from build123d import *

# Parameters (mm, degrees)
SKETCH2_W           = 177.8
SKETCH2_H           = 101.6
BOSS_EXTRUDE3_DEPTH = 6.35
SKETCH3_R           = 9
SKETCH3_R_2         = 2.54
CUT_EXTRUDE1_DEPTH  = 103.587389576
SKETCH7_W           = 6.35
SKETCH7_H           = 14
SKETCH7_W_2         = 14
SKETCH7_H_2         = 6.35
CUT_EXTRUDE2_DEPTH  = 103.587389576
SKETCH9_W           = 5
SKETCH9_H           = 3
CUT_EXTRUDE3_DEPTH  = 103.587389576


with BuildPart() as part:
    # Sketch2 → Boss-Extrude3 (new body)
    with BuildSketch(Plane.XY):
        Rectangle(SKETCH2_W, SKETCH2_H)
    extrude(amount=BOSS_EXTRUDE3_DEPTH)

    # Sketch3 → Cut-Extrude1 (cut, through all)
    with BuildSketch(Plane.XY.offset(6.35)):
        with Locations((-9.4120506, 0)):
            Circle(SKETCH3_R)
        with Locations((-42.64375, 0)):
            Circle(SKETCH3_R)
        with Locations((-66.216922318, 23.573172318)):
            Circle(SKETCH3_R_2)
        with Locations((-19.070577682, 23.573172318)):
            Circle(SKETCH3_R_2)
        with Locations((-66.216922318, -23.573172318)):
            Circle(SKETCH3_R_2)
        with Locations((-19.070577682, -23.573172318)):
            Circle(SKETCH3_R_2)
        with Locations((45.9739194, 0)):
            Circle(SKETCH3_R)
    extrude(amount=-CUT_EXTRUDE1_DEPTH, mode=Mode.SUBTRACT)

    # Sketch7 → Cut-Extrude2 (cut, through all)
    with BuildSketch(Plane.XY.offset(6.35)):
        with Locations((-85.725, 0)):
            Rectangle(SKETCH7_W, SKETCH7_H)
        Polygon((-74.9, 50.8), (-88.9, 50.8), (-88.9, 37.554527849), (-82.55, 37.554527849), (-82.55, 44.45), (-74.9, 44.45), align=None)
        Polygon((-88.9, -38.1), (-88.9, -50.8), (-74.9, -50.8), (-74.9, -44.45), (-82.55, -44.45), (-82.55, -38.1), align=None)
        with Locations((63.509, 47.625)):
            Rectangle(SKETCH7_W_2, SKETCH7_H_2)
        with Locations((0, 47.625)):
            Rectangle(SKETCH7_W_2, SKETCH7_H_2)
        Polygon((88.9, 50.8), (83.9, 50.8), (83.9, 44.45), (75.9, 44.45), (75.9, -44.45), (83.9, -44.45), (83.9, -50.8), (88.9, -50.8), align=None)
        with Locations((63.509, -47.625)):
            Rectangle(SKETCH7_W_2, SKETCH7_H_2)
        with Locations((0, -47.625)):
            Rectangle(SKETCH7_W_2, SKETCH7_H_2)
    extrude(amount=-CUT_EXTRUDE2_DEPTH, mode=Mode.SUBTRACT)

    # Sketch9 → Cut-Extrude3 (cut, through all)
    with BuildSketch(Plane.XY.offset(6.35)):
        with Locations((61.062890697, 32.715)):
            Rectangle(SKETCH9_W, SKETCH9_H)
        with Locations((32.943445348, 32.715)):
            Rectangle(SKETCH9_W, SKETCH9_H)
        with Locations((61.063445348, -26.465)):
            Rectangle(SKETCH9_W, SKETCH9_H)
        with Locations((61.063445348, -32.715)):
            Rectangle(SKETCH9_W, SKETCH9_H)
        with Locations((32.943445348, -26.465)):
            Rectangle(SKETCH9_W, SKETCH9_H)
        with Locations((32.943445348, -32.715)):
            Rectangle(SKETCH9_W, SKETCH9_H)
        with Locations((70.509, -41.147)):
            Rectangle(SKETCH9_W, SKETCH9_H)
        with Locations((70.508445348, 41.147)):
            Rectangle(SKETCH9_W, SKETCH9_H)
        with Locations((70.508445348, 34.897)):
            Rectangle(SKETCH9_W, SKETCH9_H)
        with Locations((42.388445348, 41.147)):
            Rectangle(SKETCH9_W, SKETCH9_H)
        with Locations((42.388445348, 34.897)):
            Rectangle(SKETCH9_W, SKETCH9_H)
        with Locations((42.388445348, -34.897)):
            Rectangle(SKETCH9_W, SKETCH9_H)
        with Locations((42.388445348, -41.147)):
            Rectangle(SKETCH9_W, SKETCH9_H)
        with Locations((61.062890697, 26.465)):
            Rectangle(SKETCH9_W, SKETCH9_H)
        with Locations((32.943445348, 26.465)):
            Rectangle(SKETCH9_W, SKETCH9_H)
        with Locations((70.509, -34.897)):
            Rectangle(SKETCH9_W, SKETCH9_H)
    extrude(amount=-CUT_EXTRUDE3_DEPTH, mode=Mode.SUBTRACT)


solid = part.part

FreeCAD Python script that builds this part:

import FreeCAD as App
import Part
import Sketcher
Q = App.Units.Quantity

doc = App.newDocument("Part")
body = doc.addObject("PartDesign::Body", "Body")

sketch1 = body.newObject("Sketcher::SketchObject", "Sketch")
sketch1.AttachmentSupport = (doc.getObject("XY_Plane"), [""])
sketch1.MapMode = "FlatFace"
sketch1.addGeometry(Part.LineSegment(App.Vector(-88.9, 50.8, 0), App.Vector(-88.9, -50.8, 0)), False)
sketch1.addGeometry(Part.LineSegment(App.Vector(-88.9, -50.8, 0), App.Vector(88.9, -50.8, 0)), False)
sketch1.addGeometry(Part.LineSegment(App.Vector(88.9, -50.8, 0), App.Vector(88.9, 50.8, 0)), False)
sketch1.addGeometry(Part.LineSegment(App.Vector(88.9, 50.8, 0), App.Vector(-88.9, 50.8, 0)), False)
sketch1.addConstraint(Sketcher.Constraint("Coincident", 0, 2, 1, 1))
sketch1.addConstraint(Sketcher.Constraint("Coincident", 1, 2, 2, 1))
sketch1.addConstraint(Sketcher.Constraint("Coincident", 2, 2, 3, 1))
sketch1.addConstraint(Sketcher.Constraint("Coincident", 3, 2, 0, 1))
sketch1.addConstraint(Sketcher.Constraint("Vertical", 0))
sketch1.addConstraint(Sketcher.Constraint("Horizontal", 1))
sketch1.addConstraint(Sketcher.Constraint("Vertical", 2))
sketch1.addConstraint(Sketcher.Constraint("Horizontal", 3))
sketch1.addConstraint(Sketcher.Constraint("Symmetric", 0, 2, 2, 2, -1, 1))
sketch1.addConstraint(Sketcher.Constraint("DistanceX", 1, 1, 1, 2, Q("7 in")))
sketch1.addConstraint(Sketcher.Constraint("DistanceY", 0, 2, 0, 1, Q("4 in")))
pad1 = body.newObject("PartDesign::Pad", "Pad")
pad1.Profile = sketch1
pad1.Length = Q("0.25 in")

sketch2 = body.newObject("Sketcher::SketchObject", "Sketch001")
sketch2.AttachmentSupport = (doc.getObject("XY_Plane"), [""])
sketch2.MapMode = "FlatFace"
sketch2.AttachmentOffset = App.Placement(App.Vector(0, 0, 0.25 * 25.4), App.Rotation())
sketch2.addGeometry(Part.Circle(App.Vector(-9.412051, 0, 0), App.Vector(0, 0, 1), 9), False)
sketch2.addGeometry(Part.Circle(App.Vector(-42.64375, 0, 0), App.Vector(0, 0, 1), 9), False)
sketch2.addGeometry(Part.Circle(App.Vector(-66.216922, 23.573172, 0), App.Vector(0, 0, 1), 2.54), False)
sketch2.addGeometry(Part.Circle(App.Vector(-19.070578, 23.573172, 0), App.Vector(0, 0, 1), 2.54), False)
sketch2.addGeometry(Part.Circle(App.Vector(-66.216922, -23.573172, 0), App.Vector(0, 0, 1), 2.54), False)
sketch2.addGeometry(Part.Circle(App.Vector(-19.070578, -23.573172, 0), App.Vector(0, 0, 1), 2.54), False)
sketch2.addGeometry(Part.Circle(App.Vector(45.973919, 0, 0), App.Vector(0, 0, 1), 9), False)
sketch2.addConstraint(Sketcher.Constraint("Equal", 0, 1))
sketch2.addConstraint(Sketcher.Constraint("Equal", 2, 3))
sketch2.addConstraint(Sketcher.Constraint("Equal", 3, 4))
sketch2.addConstraint(Sketcher.Constraint("Equal", 4, 5))
sketch2.addConstraint(Sketcher.Constraint("Equal", 1, 6))
sketch2.addConstraint(Sketcher.Constraint("Symmetric", 2, 3, 4, 3, -1))
sketch2.addConstraint(Sketcher.Constraint("Symmetric", 3, 3, 5, 3, -1))
sketch2.addConstraint(Sketcher.Constraint("PointOnObject", 0, 3, -1))
sketch2.addConstraint(Sketcher.Constraint("PointOnObject", 1, 3, -1))
sketch2.addConstraint(Sketcher.Constraint("PointOnObject", 6, 3, -1))
sketch2.addConstraint(Sketcher.Constraint("Horizontal", 2, 3, 3, 3))
sketch2.addConstraint(Sketcher.Constraint("Diameter", 2, Q("0.2 in")))
sketch2.addConstraint(Sketcher.Constraint("Diameter", 0, 18.0))
sketch2.addConstraint(Sketcher.Constraint("DistanceX", 1, 3, 0, 3, 33.231699))
sketch2.addConstraint(Sketcher.Constraint("DistanceX", 0, 3, -1, 1, 9.412051))
sketch2.addConstraint(Sketcher.Constraint("DistanceX", -1, 1, 6, 3, 45.973919))
sketch2.addConstraint(Sketcher.Constraint("DistanceX", 2, 3, 0, 3, 56.804872))
sketch2.addConstraint(Sketcher.Constraint("DistanceY", -1, 1, 2, 3, 23.573172))
sketch2.addConstraint(Sketcher.Constraint("DistanceX", 3, 3, -1, 1, 19.070578))
pocket1 = body.newObject("PartDesign::Pocket", "Pocket")
pocket1.Profile = sketch2
pocket1.Type = "ThroughAll"

sketch3 = body.newObject("Sketcher::SketchObject", "Sketch002")
sketch3.AttachmentSupport = (doc.getObject("XY_Plane"), [""])
sketch3.MapMode = "FlatFace"
sketch3.AttachmentOffset = App.Placement(App.Vector(0, 0, 0.25 * 25.4), App.Rotation())
sketch3.addGeometry(Part.LineSegment(App.Vector(-88.9, 7, 0), App.Vector(-88.9, -7, 0)), False)
sketch3.addGeometry(Part.LineSegment(App.Vector(-88.9, -7, 0), App.Vector(-82.55, -7, 0)), False)
sketch3.addGeometry(Part.LineSegment(App.Vector(-82.55, -7, 0), App.Vector(-82.55, 7, 0)), False)
sketch3.addGeometry(Part.LineSegment(App.Vector(-82.55, 7, 0), App.Vector(-88.9, 7, 0)), False)
sketch3.addGeometry(Part.LineSegment(App.Vector(-74.9, 50.8, 0), App.Vector(-88.9, 50.8, 0)), False)
sketch3.addGeometry(Part.LineSegment(App.Vector(-88.9, 50.8, 0), App.Vector(-88.9, 37.554528, 0)), False)
sketch3.addGeometry(Part.LineSegment(App.Vector(-88.9, 37.554528, 0), App.Vector(-82.55, 37.554528, 0)), False)
sketch3.addGeometry(Part.LineSegment(App.Vector(-82.55, 37.554528, 0), App.Vector(-82.55, 44.45, 0)), False)
sketch3.addGeometry(Part.LineSegment(App.Vector(-82.55, 44.45, 0), App.Vector(-74.9, 44.45, 0)), False)
sketch3.addGeometry(Part.LineSegment(App.Vector(-74.9, 44.45, 0), App.Vector(-74.9, 50.8, 0)), False)
sketch3.addGeometry(Part.LineSegment(App.Vector(-88.9, -38.1, 0), App.Vector(-88.9, -50.8, 0)), False)
sketch3.addGeometry(Part.LineSegment(App.Vector(-88.9, -50.8, 0), App.Vector(-74.9, -50.8, 0)), False)
sketch3.addGeometry(Part.LineSegment(App.Vector(-74.9, -50.8, 0), App.Vector(-74.9, -44.45, 0)), False)
sketch3.addGeometry(Part.LineSegment(App.Vector(-74.9, -44.45, 0), App.Vector(-82.55, -44.45, 0)), False)
sketch3.addGeometry(Part.LineSegment(App.Vector(-82.55, -44.45, 0), App.Vector(-82.55, -38.1, 0)), False)
sketch3.addGeometry(Part.LineSegment(App.Vector(-82.55, -38.1, 0), App.Vector(-88.9, -38.1, 0)), False)
sketch3.addGeometry(Part.LineSegment(App.Vector(56.509, 50.8, 0), App.Vector(56.509, 44.45, 0)), False)
sketch3.addGeometry(Part.LineSegment(App.Vector(56.509, 44.45, 0), App.Vector(70.509, 44.45, 0)), False)
sketch3.addGeometry(Part.LineSegment(App.Vector(70.509, 44.45, 0), App.Vector(70.509, 50.8, 0)), False)
sketch3.addGeometry(Part.LineSegment(App.Vector(70.509, 50.8, 0), App.Vector(56.509, 50.8, 0)), False)
sketch3.addGeometry(Part.LineSegment(App.Vector(-7, 50.8, 0), App.Vector(-7, 44.45, 0)), False)
sketch3.addGeometry(Part.LineSegment(App.Vector(-7, 44.45, 0), App.Vector(7, 44.45, 0)), False)
sketch3.addGeometry(Part.LineSegment(App.Vector(7, 44.45, 0), App.Vector(7, 50.8, 0)), False)
sketch3.addGeometry(Part.LineSegment(App.Vector(7, 50.8, 0), App.Vector(-7, 50.8, 0)), False)
sketch3.addGeometry(Part.LineSegment(App.Vector(88.9, 50.8, 0), App.Vector(83.9, 50.8, 0)), False)
sketch3.addGeometry(Part.LineSegment(App.Vector(83.9, 50.8, 0), App.Vector(83.9, 44.45, 0)), False)
sketch3.addGeometry(Part.LineSegment(App.Vector(83.9, 44.45, 0), App.Vector(75.9, 44.45, 0)), False)
sketch3.addGeometry(Part.LineSegment(App.Vector(75.9, 44.45, 0), App.Vector(75.9, -44.45, 0)), False)
sketch3.addGeometry(Part.LineSegment(App.Vector(75.9, -44.45, 0), App.Vector(83.9, -44.45, 0)), False)
sketch3.addGeometry(Part.LineSegment(App.Vector(83.9, -44.45, 0), App.Vector(83.9, -50.8, 0)), False)
sketch3.addGeometry(Part.LineSegment(App.Vector(83.9, -50.8, 0), App.Vector(88.9, -50.8, 0)), False)
sketch3.addGeometry(Part.LineSegment(App.Vector(88.9, -50.8, 0), App.Vector(88.9, 50.8, 0)), False)
sketch3.addGeometry(Part.LineSegment(App.Vector(56.509, -44.45, 0), App.Vector(56.509, -50.8, 0)), False)
sketch3.addGeometry(Part.LineSegment(App.Vector(56.509, -50.8, 0), App.Vector(70.509, -50.8, 0)), False)
sketch3.addGeometry(Part.LineSegment(App.Vector(70.509, -50.8, 0), App.Vector(70.509, -44.45, 0)), False)
sketch3.addGeometry(Part.LineSegment(App.Vector(70.509, -44.45, 0), App.Vector(56.509, -44.45, 0)), False)
sketch3.addGeometry(Part.LineSegment(App.Vector(-7, -44.45, 0), App.Vector(-7, -50.8, 0)), False)
sketch3.addGeometry(Part.LineSegment(App.Vector(-7, -50.8, 0), App.Vector(7, -50.8, 0)), False)
sketch3.addGeometry(Part.LineSegment(App.Vector(7, -50.8, 0), App.Vector(7, -44.45, 0)), False)
sketch3.addGeometry(Part.LineSegment(App.Vector(7, -44.45, 0), App.Vector(-7, -44.45, 0)), False)
sketch3.addConstraint(Sketcher.Constraint("Coincident", 0, 2, 1, 1))
sketch3.addConstraint(Sketcher.Constraint("Coincident", 1, 2, 2, 1))
sketch3.addConstraint(Sketcher.Constraint("Coincident", 2, 2, 3, 1))
sketch3.addConstraint(Sketcher.Constraint("Coincident", 3, 2, 0, 1))
sketch3.addConstraint(Sketcher.Constraint("Coincident", 4, 2, 5, 1))
sketch3.addConstraint(Sketcher.Constraint("Coincident", 5, 2, 6, 1))
sketch3.addConstraint(Sketcher.Constraint("Coincident", 6, 2, 7, 1))
sketch3.addConstraint(Sketcher.Constraint("Coincident", 7, 2, 8, 1))
sketch3.addConstraint(Sketcher.Constraint("Coincident", 8, 2, 9, 1))
sketch3.addConstraint(Sketcher.Constraint("Coincident", 9, 2, 4, 1))
sketch3.addConstraint(Sketcher.Constraint("Coincident", 10, 2, 11, 1))
sketch3.addConstraint(Sketcher.Constraint("Coincident", 11, 2, 12, 1))
sketch3.addConstraint(Sketcher.Constraint("Coincident", 12, 2, 13, 1))
sketch3.addConstraint(Sketcher.Constraint("Coincident", 13, 2, 14, 1))
sketch3.addConstraint(Sketcher.Constraint("Coincident", 14, 2, 15, 1))
sketch3.addConstraint(Sketcher.Constraint("Coincident", 15, 2, 10, 1))
sketch3.addConstraint(Sketcher.Constraint("Coincident", 16, 2, 17, 1))
sketch3.addConstraint(Sketcher.Constraint("Coincident", 17, 2, 18, 1))
sketch3.addConstraint(Sketcher.Constraint("Coincident", 18, 2, 19, 1))
sketch3.addConstraint(Sketcher.Constraint("Coincident", 19, 2, 16, 1))
sketch3.addConstraint(Sketcher.Constraint("Coincident", 20, 2, 21, 1))
sketch3.addConstraint(Sketcher.Constraint("Coincident", 21, 2, 22, 1))
sketch3.addConstraint(Sketcher.Constraint("Coincident", 22, 2, 23, 1))
sketch3.addConstraint(Sketcher.Constraint("Coincident", 23, 2, 20, 1))
sketch3.addConstraint(Sketcher.Constraint("Coincident", 24, 2, 25, 1))
sketch3.addConstraint(Sketcher.Constraint("Coincident", 25, 2, 26, 1))
sketch3.addConstraint(Sketcher.Constraint("Coincident", 26, 2, 27, 1))
sketch3.addConstraint(Sketcher.Constraint("Coincident", 27, 2, 28, 1))
sketch3.addConstraint(Sketcher.Constraint("Coincident", 28, 2, 29, 1))
sketch3.addConstraint(Sketcher.Constraint("Coincident", 29, 2, 30, 1))
sketch3.addConstraint(Sketcher.Constraint("Coincident", 30, 2, 31, 1))
sketch3.addConstraint(Sketcher.Constraint("Coincident", 31, 2, 24, 1))
sketch3.addConstraint(Sketcher.Constraint("Coincident", 32, 2, 33, 1))
sketch3.addConstraint(Sketcher.Constraint("Coincident", 33, 2, 34, 1))
sketch3.addConstraint(Sketcher.Constraint("Coincident", 34, 2, 35, 1))
sketch3.addConstraint(Sketcher.Constraint("Coincident", 35, 2, 32, 1))
sketch3.addConstraint(Sketcher.Constraint("Coincident", 36, 2, 37, 1))
sketch3.addConstraint(Sketcher.Constraint("Coincident", 37, 2, 38, 1))
sketch3.addConstraint(Sketcher.Constraint("Coincident", 38, 2, 39, 1))
sketch3.addConstraint(Sketcher.Constraint("Coincident", 39, 2, 36, 1))
sketch3.addConstraint(Sketcher.Constraint("Vertical", 0))
sketch3.addConstraint(Sketcher.Constraint("Horizontal", 1))
sketch3.addConstraint(Sketcher.Constraint("Vertical", 2))
sketch3.addConstraint(Sketcher.Constraint("Horizontal", 3))
sketch3.addConstraint(Sketcher.Constraint("Horizontal", 4))
sketch3.addConstraint(Sketcher.Constraint("Vertical", 5))
sketch3.addConstraint(Sketcher.Constraint("Horizontal", 6))
sketch3.addConstraint(Sketcher.Constraint("Vertical", 7))
sketch3.addConstraint(Sketcher.Constraint("Horizontal", 8))
sketch3.addConstraint(Sketcher.Constraint("Vertical", 9))
sketch3.addConstraint(Sketcher.Constraint("Vertical", 10))
sketch3.addConstraint(Sketcher.Constraint("Horizontal", 11))
sketch3.addConstraint(Sketcher.Constraint("Vertical", 12))
sketch3.addConstraint(Sketcher.Constraint("Horizontal", 13))
sketch3.addConstraint(Sketcher.Constraint("Vertical", 14))
sketch3.addConstraint(Sketcher.Constraint("Horizontal", 15))
sketch3.addConstraint(Sketcher.Constraint("Vertical", 16))
sketch3.addConstraint(Sketcher.Constraint("Horizontal", 17))
sketch3.addConstraint(Sketcher.Constraint("Vertical", 18))
sketch3.addConstraint(Sketcher.Constraint("Horizontal", 19))
sketch3.addConstraint(Sketcher.Constraint("Vertical", 20))
sketch3.addConstraint(Sketcher.Constraint("Horizontal", 21))
sketch3.addConstraint(Sketcher.Constraint("Vertical", 22))
sketch3.addConstraint(Sketcher.Constraint("Horizontal", 23))
sketch3.addConstraint(Sketcher.Constraint("Horizontal", 24))
sketch3.addConstraint(Sketcher.Constraint("Vertical", 25))
sketch3.addConstraint(Sketcher.Constraint("Horizontal", 26))
sketch3.addConstraint(Sketcher.Constraint("Vertical", 27))
sketch3.addConstraint(Sketcher.Constraint("Horizontal", 28))
sketch3.addConstraint(Sketcher.Constraint("Vertical", 29))
sketch3.addConstraint(Sketcher.Constraint("Horizontal", 30))
sketch3.addConstraint(Sketcher.Constraint("Vertical", 31))
sketch3.addConstraint(Sketcher.Constraint("Vertical", 32))
sketch3.addConstraint(Sketcher.Constraint("Horizontal", 33))
sketch3.addConstraint(Sketcher.Constraint("Vertical", 34))
sketch3.addConstraint(Sketcher.Constraint("Horizontal", 35))
sketch3.addConstraint(Sketcher.Constraint("Vertical", 36))
sketch3.addConstraint(Sketcher.Constraint("Horizontal", 37))
sketch3.addConstraint(Sketcher.Constraint("Vertical", 38))
sketch3.addConstraint(Sketcher.Constraint("Horizontal", 39))
sketch3.addConstraint(Sketcher.Constraint("Symmetric", 4, 2, 30, 2, -1, 1))
sketch3.addConstraint(Sketcher.Constraint("Symmetric", 10, 2, 31, 2, -1, 1))
sketch3.addConstraint(Sketcher.Constraint("Symmetric", 22, 2, 36, 2, -1, 1))
sketch3.addConstraint(Sketcher.Constraint("Symmetric", 20, 2, 38, 2, -1, 1))
sketch3.addConstraint(Sketcher.Constraint("Symmetric", 9, 2, 11, 2, -1))
sketch3.addConstraint(Sketcher.Constraint("Symmetric", 7, 2, 13, 2, -1))
sketch3.addConstraint(Sketcher.Constraint("Symmetric", 25, 2, 28, 2, -1))
sketch3.addConstraint(Sketcher.Constraint("Symmetric", 19, 2, 32, 2, -1))
sketch3.addConstraint(Sketcher.Constraint("Symmetric", 17, 2, 34, 2, -1))
sketch3.addConstraint(Sketcher.Constraint("Horizontal", 8, 2, 16, 2))
sketch3.addConstraint(Sketcher.Constraint("Horizontal", 9, 2, 18, 2))
sketch3.addConstraint(Sketcher.Constraint("Horizontal", 17, 2, 20, 2))
sketch3.addConstraint(Sketcher.Constraint("Horizontal", 19, 2, 22, 2))
sketch3.addConstraint(Sketcher.Constraint("Horizontal", 21, 2, 25, 2))
sketch3.addConstraint(Sketcher.Constraint("Vertical", 3, 2, 4, 2))
sketch3.addConstraint(Sketcher.Constraint("Vertical", 2, 2, 6, 2))
sketch3.addConstraint(Sketcher.Constraint("Vertical", 23, 2, 36, 2))
sketch3.addConstraint(Sketcher.Constraint("Equal", 11, 17))
sketch3.addConstraint(Sketcher.Constraint("Equal", 19, 21))
sketch3.addConstraint(Sketcher.Constraint("Equal", 39, 0))
sketch3.addConstraint(Sketcher.Constraint("Equal", 15, 9))
sketch3.addConstraint(Sketcher.Constraint("Equal", 12, 14))
sketch3.addConstraint(Sketcher.Constraint("DistanceY", 31, 1, 31, 2, Q("4 in")))
sketch3.addConstraint(Sketcher.Constraint("DistanceY", 10, 2, 10, 1, Q("0.5 in")))
sketch3.addConstraint(Sketcher.Constraint("DistanceX", 0, 2, -1, 1, Q("3.5 in")))
sketch3.addConstraint(Sketcher.Constraint("DistanceX", 4, 2, 4, 1, 14.0))
sketch3.addConstraint(Sketcher.Constraint("DistanceX", 24, 2, 24, 1, 5.0))
sketch3.addConstraint(Sketcher.Constraint("DistanceX", 26, 2, 26, 1, 8.0))
sketch3.addConstraint(Sketcher.Constraint("DistanceY", 0, 2, -1, 1, 7.0))
sketch3.addConstraint(Sketcher.Constraint("DistanceX", -1, 1, 16, 2, 56.509))
sketch3.addConstraint(Sketcher.Constraint("DistanceY", 5, 2, 5, 1, 13.245472))
pocket2 = body.newObject("PartDesign::Pocket", "Pocket001")
pocket2.Profile = sketch3
pocket2.Type = "ThroughAll"

sketch4 = body.newObject("Sketcher::SketchObject", "Sketch003")
sketch4.AttachmentSupport = (doc.getObject("XY_Plane"), [""])
sketch4.MapMode = "FlatFace"
sketch4.AttachmentOffset = App.Placement(App.Vector(0, 0, 0.25 * 25.4), App.Rotation())
sketch4.addGeometry(Part.LineSegment(App.Vector(58.562891, 34.215, 0), App.Vector(58.562891, 31.215, 0)), False)
sketch4.addGeometry(Part.LineSegment(App.Vector(58.562891, 31.215, 0), App.Vector(63.562891, 31.215, 0)), False)
sketch4.addGeometry(Part.LineSegment(App.Vector(63.562891, 31.215, 0), App.Vector(63.562891, 34.215, 0)), False)
sketch4.addGeometry(Part.LineSegment(App.Vector(63.562891, 34.215, 0), App.Vector(58.562891, 34.215, 0)), False)
sketch4.addGeometry(Part.LineSegment(App.Vector(30.443445, 34.215, 0), App.Vector(30.443445, 31.215, 0)), False)
sketch4.addGeometry(Part.LineSegment(App.Vector(30.443445, 31.215, 0), App.Vector(35.443445, 31.215, 0)), False)
sketch4.addGeometry(Part.LineSegment(App.Vector(35.443445, 31.215, 0), App.Vector(35.443445, 34.215, 0)), False)
sketch4.addGeometry(Part.LineSegment(App.Vector(35.443445, 34.215, 0), App.Vector(30.443445, 34.215, 0)), False)
sketch4.addGeometry(Part.LineSegment(App.Vector(58.563445, -24.965, 0), App.Vector(58.563445, -27.965, 0)), False)
sketch4.addGeometry(Part.LineSegment(App.Vector(58.563445, -27.965, 0), App.Vector(63.563445, -27.965, 0)), False)
sketch4.addGeometry(Part.LineSegment(App.Vector(63.563445, -27.965, 0), App.Vector(63.563445, -24.965, 0)), False)
sketch4.addGeometry(Part.LineSegment(App.Vector(63.563445, -24.965, 0), App.Vector(58.563445, -24.965, 0)), False)
sketch4.addGeometry(Part.LineSegment(App.Vector(58.563445, -31.215, 0), App.Vector(58.563445, -34.215, 0)), False)
sketch4.addGeometry(Part.LineSegment(App.Vector(58.563445, -34.215, 0), App.Vector(63.563445, -34.215, 0)), False)
sketch4.addGeometry(Part.LineSegment(App.Vector(63.563445, -34.215, 0), App.Vector(63.563445, -31.215, 0)), False)
sketch4.addGeometry(Part.LineSegment(App.Vector(63.563445, -31.215, 0), App.Vector(58.563445, -31.215, 0)), False)
sketch4.addGeometry(Part.LineSegment(App.Vector(30.443445, -24.965, 0), App.Vector(30.443445, -27.965, 0)), False)
sketch4.addGeometry(Part.LineSegment(App.Vector(30.443445, -27.965, 0), App.Vector(35.443445, -27.965, 0)), False)
sketch4.addGeometry(Part.LineSegment(App.Vector(35.443445, -27.965, 0), App.Vector(35.443445, -24.965, 0)), False)
sketch4.addGeometry(Part.LineSegment(App.Vector(35.443445, -24.965, 0), App.Vector(30.443445, -24.965, 0)), False)
sketch4.addGeometry(Part.LineSegment(App.Vector(30.443445, -31.215, 0), App.Vector(30.443445, -34.215, 0)), False)
sketch4.addGeometry(Part.LineSegment(App.Vector(30.443445, -34.215, 0), App.Vector(35.443445, -34.215, 0)), False)
sketch4.addGeometry(Part.LineSegment(App.Vector(35.443445, -34.215, 0), App.Vector(35.443445, -31.215, 0)), False)
sketch4.addGeometry(Part.LineSegment(App.Vector(35.443445, -31.215, 0), App.Vector(30.443445, -31.215, 0)), False)
sketch4.addGeometry(Part.LineSegment(App.Vector(68.009, -39.647, 0), App.Vector(68.009, -42.647, 0)), False)
sketch4.addGeometry(Part.LineSegment(App.Vector(68.009, -42.647, 0), App.Vector(73.009, -42.647, 0)), False)
sketch4.addGeometry(Part.LineSegment(App.Vector(73.009, -42.647, 0), App.Vector(73.009, -39.647, 0)), False)
sketch4.addGeometry(Part.LineSegment(App.Vector(73.009, -39.647, 0), App.Vector(68.009, -39.647, 0)), False)
sketch4.addGeometry(Part.LineSegment(App.Vector(68.008445, 42.647, 0), App.Vector(68.008445, 39.647, 0)), False)
sketch4.addGeometry(Part.LineSegment(App.Vector(68.008445, 39.647, 0), App.Vector(73.008445, 39.647, 0)), False)
sketch4.addGeometry(Part.LineSegment(App.Vector(73.008445, 39.647, 0), App.Vector(73.008445, 42.647, 0)), False)
sketch4.addGeometry(Part.LineSegment(App.Vector(73.008445, 42.647, 0), App.Vector(68.008445, 42.647, 0)), False)
sketch4.addGeometry(Part.LineSegment(App.Vector(68.008445, 36.397, 0), App.Vector(68.008445, 33.397, 0)), False)
sketch4.addGeometry(Part.LineSegment(App.Vector(68.008445, 33.397, 0), App.Vector(73.008445, 33.397, 0)), False)
sketch4.addGeometry(Part.LineSegment(App.Vector(73.008445, 33.397, 0), App.Vector(73.008445, 36.397, 0)), False)
sketch4.addGeometry(Part.LineSegment(App.Vector(73.008445, 36.397, 0), App.Vector(68.008445, 36.397, 0)), False)
sketch4.addGeometry(Part.LineSegment(App.Vector(39.888445, 42.647, 0), App.Vector(39.888445, 39.647, 0)), False)
sketch4.addGeometry(Part.LineSegment(App.Vector(39.888445, 39.647, 0), App.Vector(44.888445, 39.647, 0)), False)
sketch4.addGeometry(Part.LineSegment(App.Vector(44.888445, 39.647, 0), App.Vector(44.888445, 42.647, 0)), False)
sketch4.addGeometry(Part.LineSegment(App.Vector(44.888445, 42.647, 0), App.Vector(39.888445, 42.647, 0)), False)
sketch4.addGeometry(Part.LineSegment(App.Vector(39.888445, 36.397, 0), App.Vector(39.888445, 33.397, 0)), False)
sketch4.addGeometry(Part.LineSegment(App.Vector(39.888445, 33.397, 0), App.Vector(44.888445, 33.397, 0)), False)
sketch4.addGeometry(Part.LineSegment(App.Vector(44.888445, 33.397, 0), App.Vector(44.888445, 36.397, 0)), False)
sketch4.addGeometry(Part.LineSegment(App.Vector(44.888445, 36.397, 0), App.Vector(39.888445, 36.397, 0)), False)
sketch4.addGeometry(Part.LineSegment(App.Vector(39.888445, -33.397, 0), App.Vector(39.888445, -36.397, 0)), False)
sketch4.addGeometry(Part.LineSegment(App.Vector(39.888445, -36.397, 0), App.Vector(44.888445, -36.397, 0)), False)
sketch4.addGeometry(Part.LineSegment(App.Vector(44.888445, -36.397, 0), App.Vector(44.888445, -33.397, 0)), False)
sketch4.addGeometry(Part.LineSegment(App.Vector(44.888445, -33.397, 0), App.Vector(39.888445, -33.397, 0)), False)
sketch4.addGeometry(Part.LineSegment(App.Vector(39.888445, -39.647, 0), App.Vector(39.888445, -42.647, 0)), False)
sketch4.addGeometry(Part.LineSegment(App.Vector(39.888445, -42.647, 0), App.Vector(44.888445, -42.647, 0)), False)
sketch4.addGeometry(Part.LineSegment(App.Vector(44.888445, -42.647, 0), App.Vector(44.888445, -39.647, 0)), False)
sketch4.addGeometry(Part.LineSegment(App.Vector(44.888445, -39.647, 0), App.Vector(39.888445, -39.647, 0)), False)
sketch4.addGeometry(Part.LineSegment(App.Vector(58.562891, 27.965, 0), App.Vector(58.562891, 24.965, 0)), False)
sketch4.addGeometry(Part.LineSegment(App.Vector(58.562891, 24.965, 0), App.Vector(63.562891, 24.965, 0)), False)
sketch4.addGeometry(Part.LineSegment(App.Vector(63.562891, 24.965, 0), App.Vector(63.562891, 27.965, 0)), False)
sketch4.addGeometry(Part.LineSegment(App.Vector(63.562891, 27.965, 0), App.Vector(58.562891, 27.965, 0)), False)
sketch4.addGeometry(Part.LineSegment(App.Vector(30.443445, 27.965, 0), App.Vector(30.443445, 24.965, 0)), False)
sketch4.addGeometry(Part.LineSegment(App.Vector(30.443445, 24.965, 0), App.Vector(35.443445, 24.965, 0)), False)
sketch4.addGeometry(Part.LineSegment(App.Vector(35.443445, 24.965, 0), App.Vector(35.443445, 27.965, 0)), False)
sketch4.addGeometry(Part.LineSegment(App.Vector(35.443445, 27.965, 0), App.Vector(30.443445, 27.965, 0)), False)
sketch4.addGeometry(Part.LineSegment(App.Vector(68.009, -33.397, 0), App.Vector(68.009, -36.397, 0)), False)
sketch4.addGeometry(Part.LineSegment(App.Vector(68.009, -36.397, 0), App.Vector(73.009, -36.397, 0)), False)
sketch4.addGeometry(Part.LineSegment(App.Vector(73.009, -36.397, 0), App.Vector(73.009, -33.397, 0)), False)
sketch4.addGeometry(Part.LineSegment(App.Vector(73.009, -33.397, 0), App.Vector(68.009, -33.397, 0)), False)
sketch4.addConstraint(Sketcher.Constraint("Coincident", 0, 2, 1, 1))
sketch4.addConstraint(Sketcher.Constraint("Coincident", 1, 2, 2, 1))
sketch4.addConstraint(Sketcher.Constraint("Coincident", 2, 2, 3, 1))
sketch4.addConstraint(Sketcher.Constraint("Coincident", 3, 2, 0, 1))
sketch4.addConstraint(Sketcher.Constraint("Coincident", 4, 2, 5, 1))
sketch4.addConstraint(Sketcher.Constraint("Coincident", 5, 2, 6, 1))
sketch4.addConstraint(Sketcher.Constraint("Coincident", 6, 2, 7, 1))
sketch4.addConstraint(Sketcher.Constraint("Coincident", 7, 2, 4, 1))
sketch4.addConstraint(Sketcher.Constraint("Coincident", 8, 2, 9, 1))
sketch4.addConstraint(Sketcher.Constraint("Coincident", 9, 2, 10, 1))
sketch4.addConstraint(Sketcher.Constraint("Coincident", 10, 2, 11, 1))
sketch4.addConstraint(Sketcher.Constraint("Coincident", 11, 2, 8, 1))
sketch4.addConstraint(Sketcher.Constraint("Coincident", 12, 2, 13, 1))
sketch4.addConstraint(Sketcher.Constraint("Coincident", 13, 2, 14, 1))
sketch4.addConstraint(Sketcher.Constraint("Coincident", 14, 2, 15, 1))
sketch4.addConstraint(Sketcher.Constraint("Coincident", 15, 2, 12, 1))
sketch4.addConstraint(Sketcher.Constraint("Coincident", 16, 2, 17, 1))
sketch4.addConstraint(Sketcher.Constraint("Coincident", 17, 2, 18, 1))
sketch4.addConstraint(Sketcher.Constraint("Coincident", 18, 2, 19, 1))
sketch4.addConstraint(Sketcher.Constraint("Coincident", 19, 2, 16, 1))
sketch4.addConstraint(Sketcher.Constraint("Coincident", 20, 2, 21, 1))
sketch4.addConstraint(Sketcher.Constraint("Coincident", 21, 2, 22, 1))
sketch4.addConstraint(Sketcher.Constraint("Coincident", 22, 2, 23, 1))
sketch4.addConstraint(Sketcher.Constraint("Coincident", 23, 2, 20, 1))
sketch4.addConstraint(Sketcher.Constraint("Coincident", 24, 2, 25, 1))
sketch4.addConstraint(Sketcher.Constraint("Coincident", 25, 2, 26, 1))
sketch4.addConstraint(Sketcher.Constraint("Coincident", 26, 2, 27, 1))
sketch4.addConstraint(Sketcher.Constraint("Coincident", 27, 2, 24, 1))
sketch4.addConstraint(Sketcher.Constraint("Coincident", 28, 2, 29, 1))
sketch4.addConstraint(Sketcher.Constraint("Coincident", 29, 2, 30, 1))
sketch4.addConstraint(Sketcher.Constraint("Coincident", 30, 2, 31, 1))
sketch4.addConstraint(Sketcher.Constraint("Coincident", 31, 2, 28, 1))
sketch4.addConstraint(Sketcher.Constraint("Coincident", 32, 2, 33, 1))
sketch4.addConstraint(Sketcher.Constraint("Coincident", 33, 2, 34, 1))
sketch4.addConstraint(Sketcher.Constraint("Coincident", 34, 2, 35, 1))
sketch4.addConstraint(Sketcher.Constraint("Coincident", 35, 2, 32, 1))
sketch4.addConstraint(Sketcher.Constraint("Coincident", 36, 2, 37, 1))
sketch4.addConstraint(Sketcher.Constraint("Coincident", 37, 2, 38, 1))
sketch4.addConstraint(Sketcher.Constraint("Coincident", 38, 2, 39, 1))
sketch4.addConstraint(Sketcher.Constraint("Coincident", 39, 2, 36, 1))
sketch4.addConstraint(Sketcher.Constraint("Coincident", 40, 2, 41, 1))
sketch4.addConstraint(Sketcher.Constraint("Coincident", 41, 2, 42, 1))
sketch4.addConstraint(Sketcher.Constraint("Coincident", 42, 2, 43, 1))
sketch4.addConstraint(Sketcher.Constraint("Coincident", 43, 2, 40, 1))
sketch4.addConstraint(Sketcher.Constraint("Coincident", 44, 2, 45, 1))
sketch4.addConstraint(Sketcher.Constraint("Coincident", 45, 2, 46, 1))
sketch4.addConstraint(Sketcher.Constraint("Coincident", 46, 2, 47, 1))
sketch4.addConstraint(Sketcher.Constraint("Coincident", 47, 2, 44, 1))
sketch4.addConstraint(Sketcher.Constraint("Coincident", 48, 2, 49, 1))
sketch4.addConstraint(Sketcher.Constraint("Coincident", 49, 2, 50, 1))
sketch4.addConstraint(Sketcher.Constraint("Coincident", 50, 2, 51, 1))
sketch4.addConstraint(Sketcher.Constraint("Coincident", 51, 2, 48, 1))
sketch4.addConstraint(Sketcher.Constraint("Coincident", 52, 2, 53, 1))
sketch4.addConstraint(Sketcher.Constraint("Coincident", 53, 2, 54, 1))
sketch4.addConstraint(Sketcher.Constraint("Coincident", 54, 2, 55, 1))
sketch4.addConstraint(Sketcher.Constraint("Coincident", 55, 2, 52, 1))
sketch4.addConstraint(Sketcher.Constraint("Coincident", 56, 2, 57, 1))
sketch4.addConstraint(Sketcher.Constraint("Coincident", 57, 2, 58, 1))
sketch4.addConstraint(Sketcher.Constraint("Coincident", 58, 2, 59, 1))
sketch4.addConstraint(Sketcher.Constraint("Coincident", 59, 2, 56, 1))
sketch4.addConstraint(Sketcher.Constraint("Coincident", 60, 2, 61, 1))
sketch4.addConstraint(Sketcher.Constraint("Coincident", 61, 2, 62, 1))
sketch4.addConstraint(Sketcher.Constraint("Coincident", 62, 2, 63, 1))
sketch4.addConstraint(Sketcher.Constraint("Coincident", 63, 2, 60, 1))
sketch4.addConstraint(Sketcher.Constraint("Vertical", 0))
sketch4.addConstraint(Sketcher.Constraint("Horizontal", 1))
sketch4.addConstraint(Sketcher.Constraint("Vertical", 2))
sketch4.addConstraint(Sketcher.Constraint("Horizontal", 3))
sketch4.addConstraint(Sketcher.Constraint("Vertical", 4))
sketch4.addConstraint(Sketcher.Constraint("Horizontal", 5))
sketch4.addConstraint(Sketcher.Constraint("Vertical", 6))
sketch4.addConstraint(Sketcher.Constraint("Horizontal", 7))
sketch4.addConstraint(Sketcher.Constraint("Vertical", 8))
sketch4.addConstraint(Sketcher.Constraint("Horizontal", 9))
sketch4.addConstraint(Sketcher.Constraint("Vertical", 10))
sketch4.addConstraint(Sketcher.Constraint("Horizontal", 11))
sketch4.addConstraint(Sketcher.Constraint("Vertical", 12))
sketch4.addConstraint(Sketcher.Constraint("Horizontal", 13))
sketch4.addConstraint(Sketcher.Constraint("Vertical", 14))
sketch4.addConstraint(Sketcher.Constraint("Horizontal", 15))
sketch4.addConstraint(Sketcher.Constraint("Vertical", 16))
sketch4.addConstraint(Sketcher.Constraint("Horizontal", 17))
sketch4.addConstraint(Sketcher.Constraint("Vertical", 18))
sketch4.addConstraint(Sketcher.Constraint("Horizontal", 19))
sketch4.addConstraint(Sketcher.Constraint("Vertical", 20))
sketch4.addConstraint(Sketcher.Constraint("Horizontal", 21))
sketch4.addConstraint(Sketcher.Constraint("Vertical", 22))
sketch4.addConstraint(Sketcher.Constraint("Horizontal", 23))
sketch4.addConstraint(Sketcher.Constraint("Vertical", 24))
sketch4.addConstraint(Sketcher.Constraint("Horizontal", 25))
sketch4.addConstraint(Sketcher.Constraint("Vertical", 26))
sketch4.addConstraint(Sketcher.Constraint("Horizontal", 27))
sketch4.addConstraint(Sketcher.Constraint("Vertical", 28))
sketch4.addConstraint(Sketcher.Constraint("Horizontal", 29))
sketch4.addConstraint(Sketcher.Constraint("Vertical", 30))
sketch4.addConstraint(Sketcher.Constraint("Horizontal", 31))
sketch4.addConstraint(Sketcher.Constraint("Vertical", 32))
sketch4.addConstraint(Sketcher.Constraint("Horizontal", 33))
sketch4.addConstraint(Sketcher.Constraint("Vertical", 34))
sketch4.addConstraint(Sketcher.Constraint("Horizontal", 35))
sketch4.addConstraint(Sketcher.Constraint("Vertical", 36))
sketch4.addConstraint(Sketcher.Constraint("Horizontal", 37))
sketch4.addConstraint(Sketcher.Constraint("Vertical", 38))
sketch4.addConstraint(Sketcher.Constraint("Horizontal", 39))
sketch4.addConstraint(Sketcher.Constraint("Vertical", 40))
sketch4.addConstraint(Sketcher.Constraint("Horizontal", 41))
sketch4.addConstraint(Sketcher.Constraint("Vertical", 42))
sketch4.addConstraint(Sketcher.Constraint("Horizontal", 43))
sketch4.addConstraint(Sketcher.Constraint("Vertical", 44))
sketch4.addConstraint(Sketcher.Constraint("Horizontal", 45))
sketch4.addConstraint(Sketcher.Constraint("Vertical", 46))
sketch4.addConstraint(Sketcher.Constraint("Horizontal", 47))
sketch4.addConstraint(Sketcher.Constraint("Vertical", 48))
sketch4.addConstraint(Sketcher.Constraint("Horizontal", 49))
sketch4.addConstraint(Sketcher.Constraint("Vertical", 50))
sketch4.addConstraint(Sketcher.Constraint("Horizontal", 51))
sketch4.addConstraint(Sketcher.Constraint("Vertical", 52))
sketch4.addConstraint(Sketcher.Constraint("Horizontal", 53))
sketch4.addConstraint(Sketcher.Constraint("Vertical", 54))
sketch4.addConstraint(Sketcher.Constraint("Horizontal", 55))
sketch4.addConstraint(Sketcher.Constraint("Vertical", 56))
sketch4.addConstraint(Sketcher.Constraint("Horizontal", 57))
sketch4.addConstraint(Sketcher.Constraint("Vertical", 58))
sketch4.addConstraint(Sketcher.Constraint("Horizontal", 59))
sketch4.addConstraint(Sketcher.Constraint("Vertical", 60))
sketch4.addConstraint(Sketcher.Constraint("Horizontal", 61))
sketch4.addConstraint(Sketcher.Constraint("Vertical", 62))
sketch4.addConstraint(Sketcher.Constraint("Horizontal", 63))
sketch4.addConstraint(Sketcher.Constraint("Symmetric", 7, 2, 20, 2, -1))
sketch4.addConstraint(Sketcher.Constraint("Symmetric", 5, 2, 22, 2, -1))
sketch4.addConstraint(Sketcher.Constraint("Symmetric", 43, 2, 44, 2, -1))
sketch4.addConstraint(Sketcher.Constraint("Symmetric", 41, 2, 46, 2, -1))
sketch4.addConstraint(Sketcher.Constraint("Symmetric", 39, 2, 48, 2, -1))
sketch4.addConstraint(Sketcher.Constraint("Symmetric", 37, 2, 50, 2, -1))
sketch4.addConstraint(Sketcher.Constraint("Symmetric", 19, 2, 56, 2, -1))
sketch4.addConstraint(Sketcher.Constraint("Symmetric", 17, 2, 58, 2, -1))
sketch4.addConstraint(Sketcher.Constraint("Horizontal", 1, 2, 4, 2))
sketch4.addConstraint(Sketcher.Constraint("Horizontal", 3, 2, 6, 2))
sketch4.addConstraint(Sketcher.Constraint("Horizontal", 9, 2, 16, 2))
sketch4.addConstraint(Sketcher.Constraint("Horizontal", 11, 2, 18, 2))
sketch4.addConstraint(Sketcher.Constraint("Horizontal", 13, 2, 20, 2))
sketch4.addConstraint(Sketcher.Constraint("Horizontal", 15, 2, 22, 2))
sketch4.addConstraint(Sketcher.Constraint("Horizontal", 29, 2, 36, 2))
sketch4.addConstraint(Sketcher.Constraint("Horizontal", 31, 2, 38, 2))
sketch4.addConstraint(Sketcher.Constraint("Horizontal", 33, 2, 40, 2))
sketch4.addConstraint(Sketcher.Constraint("Horizontal", 35, 2, 42, 2))
sketch4.addConstraint(Sketcher.Constraint("Horizontal", 25, 2, 48, 2))
sketch4.addConstraint(Sketcher.Constraint("Horizontal", 27, 2, 50, 2))
sketch4.addConstraint(Sketcher.Constraint("Horizontal", 53, 2, 56, 2))
sketch4.addConstraint(Sketcher.Constraint("Horizontal", 55, 2, 58, 2))
sketch4.addConstraint(Sketcher.Constraint("Horizontal", 45, 2, 60, 2))
sketch4.addConstraint(Sketcher.Constraint("Horizontal", 47, 2, 62, 2))
sketch4.addConstraint(Sketcher.Constraint("Vertical", 11, 2, 12, 2))
sketch4.addConstraint(Sketcher.Constraint("Vertical", 10, 2, 13, 2))
sketch4.addConstraint(Sketcher.Constraint("Vertical", 7, 2, 16, 2))
sketch4.addConstraint(Sketcher.Constraint("Vertical", 6, 2, 17, 2))
sketch4.addConstraint(Sketcher.Constraint("Vertical", 31, 2, 32, 2))
sketch4.addConstraint(Sketcher.Constraint("Vertical", 30, 2, 33, 2))
sketch4.addConstraint(Sketcher.Constraint("Vertical", 39, 2, 40, 2))
sketch4.addConstraint(Sketcher.Constraint("Vertical", 38, 2, 41, 2))
sketch4.addConstraint(Sketcher.Constraint("Vertical", 3, 2, 52, 2))
sketch4.addConstraint(Sketcher.Constraint("Vertical", 2, 2, 53, 2))
sketch4.addConstraint(Sketcher.Constraint("Vertical", 27, 2, 60, 2))
sketch4.addConstraint(Sketcher.Constraint("Vertical", 26, 2, 61, 2))
sketch4.addConstraint(Sketcher.Constraint("Equal", 3, 5))
sketch4.addConstraint(Sketcher.Constraint("Equal", 7, 9))
sketch4.addConstraint(Sketcher.Constraint("Equal", 23, 25))
sketch4.addConstraint(Sketcher.Constraint("Equal", 27, 29))
sketch4.addConstraint(Sketcher.Constraint("Equal", 35, 37))
sketch4.addConstraint(Sketcher.Constraint("Equal", 6, 8))
sketch4.addConstraint(Sketcher.Constraint("Equal", 22, 24))
sketch4.addConstraint(Sketcher.Constraint("Equal", 30, 32))
sketch4.addConstraint(Sketcher.Constraint("DistanceX", 1, 1, 1, 2, 5.0))
sketch4.addConstraint(Sketcher.Constraint("DistanceY", 0, 2, 0, 1, 3.0))
sketch4.addConstraint(Sketcher.Constraint("DistanceY", -1, 1, 0, 2, 31.215))
sketch4.addConstraint(Sketcher.Constraint("DistanceY", 8, 2, -1, 1, 27.965))
sketch4.addConstraint(Sketcher.Constraint("DistanceX", -1, 1, 24, 2, 68.009))
sketch4.addConstraint(Sketcher.Constraint("DistanceY", 24, 2, -1, 1, 42.647))
sketch4.addConstraint(Sketcher.Constraint("DistanceY", -1, 1, 32, 2, 33.397))
sketch4.addConstraint(Sketcher.Constraint("DistanceX", -1, 1, 0, 2, 58.562891))
sketch4.addConstraint(Sketcher.Constraint("DistanceX", -1, 1, 4, 2, 30.443445))
sketch4.addConstraint(Sketcher.Constraint("DistanceX", -1, 1, 8, 2, 58.563445))
sketch4.addConstraint(Sketcher.Constraint("DistanceX", -1, 1, 28, 2, 68.008445))
sketch4.addConstraint(Sketcher.Constraint("DistanceX", -1, 1, 36, 2, 39.888445))
pocket3 = body.newObject("PartDesign::Pocket", "Pocket002")
pocket3.Profile = sketch4
pocket3.Type = "ThroughAll"

doc.recompute()
